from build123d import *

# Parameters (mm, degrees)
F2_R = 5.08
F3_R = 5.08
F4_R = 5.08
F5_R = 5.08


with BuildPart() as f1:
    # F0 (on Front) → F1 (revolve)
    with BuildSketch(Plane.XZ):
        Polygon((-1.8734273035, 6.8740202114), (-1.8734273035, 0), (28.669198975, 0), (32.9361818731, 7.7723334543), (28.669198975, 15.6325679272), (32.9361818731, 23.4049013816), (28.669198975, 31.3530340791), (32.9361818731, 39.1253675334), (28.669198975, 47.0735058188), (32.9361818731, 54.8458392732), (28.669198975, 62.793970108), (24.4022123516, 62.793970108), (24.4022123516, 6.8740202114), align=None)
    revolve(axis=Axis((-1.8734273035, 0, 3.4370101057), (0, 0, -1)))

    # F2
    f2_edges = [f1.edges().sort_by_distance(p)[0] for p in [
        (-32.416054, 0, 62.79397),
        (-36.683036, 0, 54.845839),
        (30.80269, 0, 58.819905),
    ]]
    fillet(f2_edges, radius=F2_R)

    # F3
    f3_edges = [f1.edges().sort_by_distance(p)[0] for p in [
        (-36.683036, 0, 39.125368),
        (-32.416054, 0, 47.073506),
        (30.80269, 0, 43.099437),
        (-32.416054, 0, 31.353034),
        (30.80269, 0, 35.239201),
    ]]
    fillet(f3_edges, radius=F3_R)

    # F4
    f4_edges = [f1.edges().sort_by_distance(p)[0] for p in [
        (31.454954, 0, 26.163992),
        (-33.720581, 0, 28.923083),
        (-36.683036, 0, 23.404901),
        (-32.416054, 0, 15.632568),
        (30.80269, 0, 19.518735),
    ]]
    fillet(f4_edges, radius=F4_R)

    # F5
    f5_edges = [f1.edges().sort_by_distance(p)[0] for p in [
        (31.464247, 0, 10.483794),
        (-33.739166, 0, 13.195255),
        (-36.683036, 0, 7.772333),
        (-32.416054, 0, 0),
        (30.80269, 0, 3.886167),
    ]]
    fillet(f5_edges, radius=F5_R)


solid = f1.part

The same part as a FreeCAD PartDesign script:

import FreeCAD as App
import Part
import Sketcher
Q = App.Units.Quantity


def edges_at(feature, points):
    """Names of the edges that pass closest to the given points."""
    edges = feature.Shape.Edges
    near = lambda p: min(range(len(edges)), key=lambda i: edges[i].distToShape(Part.Vertex(*p))[0])
    return sorted({f"Edge{near(p) + 1}" for p in points})


def add_polygon(sketch, points):
    """Adds a closed chain of lines whose ends are joined by coincident constraints."""
    first, n = sketch.GeometryCount, len(points)
    for a, b in zip(points, points[1:] + points[:1]):
        sketch.addGeometry(Part.LineSegment(App.Vector(*a, 0), App.Vector(*b, 0)), False)
    for i in range(n):
        sketch.addConstraint(Sketcher.Constraint("Coincident", first + i, 2, first + (i + 1) % n, 1))

doc = App.newDocument("Part")
params = doc.addObject("Spreadsheet::Sheet", "Params")
for row, (alias, value) in enumerate([
    ("revolution_angle", "360 deg"),
    ("fillet_radius", "0.2 in"),
    ("fillet2_radius", "0.2 in"),
    ("fillet3_radius", "0.2 in"),
    ("fillet4_radius", "0.2 in"),
], start=1):
    params.set(f"A{row}", alias)
    params.set(f"B{row}", "=" + value)
    params.setAlias(f"B{row}", alias)

body = doc.addObject("PartDesign::Body", "Body")

# Sketch on XZ plane
sketch1 = body.newObject("Sketcher::SketchObject", "Sketch")
sketch1.AttachmentSupport = (doc.getObject("XZ_Plane"), [""])
sketch1.MapMode = "FlatFace"
add_polygon(sketch1, [(-1.9, 6.9), (-1.9, 0), (28.7, 0), (32.9, 7.8), (28.7, 15.6), (32.9, 23.4), (28.7, 31.4), (32.9, 39.1), (28.7, 47.1), (32.9, 54.8), (28.7, 62.8), (24.4, 62.8), (24.4, 6.9)])  # lines 0-12
sketch1.addGeometry(Part.LineSegment(App.Vector(-1.9, 62.8, 0), App.Vector(-1.9, 0, 0)), True)  # axis
sketch1.addConstraint(Sketcher.Constraint("Vertical", 0))
sketch1.addConstraint(Sketcher.Constraint("Horizontal", 1))
sketch1.addConstraint(Sketcher.Constraint("Horizontal", 10))
sketch1.addConstraint(Sketcher.Constraint("Vertical", 11))
sketch1.addConstraint(Sketcher.Constraint("Horizontal", 12))
sketch1.addConstraint(Sketcher.Constraint("Vertical", 13))
sketch1.addConstraint(Sketcher.Constraint("Coincident", 13, 2, 0, 2))
sketch1.addConstraint(Sketcher.Constraint("PointOnObject", 0, 2, -1))
sketch1.addConstraint(Sketcher.Constraint("Parallel", 2, 4))
sketch1.addConstraint(Sketcher.Constraint("Parallel", 4, 6))
sketch1.addConstraint(Sketcher.Constraint("Parallel", 5, 7))
sketch1.addConstraint(Sketcher.Constraint("Parallel", 6, 8))
sketch1.addConstraint(Sketcher.Constraint("Parallel", 7, 9))
sketch1.addConstraint(Sketcher.Constraint("Horizontal", 10, 2, 13, 1))
sketch1.addConstraint(Sketcher.Constraint("Vertical", 1, 2, 3, 2))
sketch1.addConstraint(Sketcher.Constraint("Vertical", 2, 2, 4, 2))
sketch1.addConstraint(Sketcher.Constraint("Vertical", 3, 2, 5, 2))
sketch1.addConstraint(Sketcher.Constraint("Vertical", 4, 2, 6, 2))
sketch1.addConstraint(Sketcher.Constraint("Vertical", 5, 2, 7, 2))
sketch1.addConstraint(Sketcher.Constraint("Vertical", 6, 2, 8, 2))
sketch1.addConstraint(Sketcher.Constraint("Vertical", 7, 2, 9, 2))
sketch1.addConstraint(Sketcher.Constraint("DistanceX", -1, 1, 2, 2, Q("1.2967001 in")))
sketch1.addConstraint(Sketcher.Constraint("DistanceX", 12, 2, 12, 1, Q("26.27564 mm")))
sketch1.addConstraint(Sketcher.Constraint("DistanceY", 0, 2, 0, 1, Q("6.87402 mm")))
sketch1.addConstraint(Sketcher.Constraint("DistanceY", 11, 2, 11, 1, Q("55.91995 mm")))
sketch1.addConstraint(Sketcher.Constraint("DistanceX", -1, 1, 1, 2, Q("28.669199 mm")))
sketch1.addConstraint(Sketcher.Constraint("DistanceY", -1, 1, 4, 2, Q("23.404901 mm")))
sketch1.addConstraint(Sketcher.Constraint("DistanceY", 2, 2, 5, 2, Q("23.580701 mm")))
sketch1.addConstraint(Sketcher.Constraint("DistanceX", 1, 1, 1, 2, Q("30.542626 mm")))
revolution = body.newObject("PartDesign::Revolution", "Revolution")
revolution.Profile = sketch1
revolution.ReferenceAxis = (sketch1, ["Axis0"])
revolution.setExpression("Angle", "Params.revolution_angle")
doc.recompute()

fillet = body.newObject("PartDesign::Fillet", "Fillet")
fillet.Base = (revolution, edges_at(revolution, [(-32.416, 0, 62.794), (-36.683, 0, 54.846), (30.803, 0, 58.82)]))
fillet.setExpression("Radius", "Params.fillet_radius")
doc.recompute()

fillet2 = body.newObject("PartDesign::Fillet", "Fillet001")
fillet2.Base = (fillet, edges_at(fillet, [
    (-36.683, 0, 39.125),
    (-32.416, 0, 47.074),
    (30.803, 0, 43.099),
    (-32.416, 0, 31.353),
    (30.803, 0, 35.239),
]))
fillet2.setExpression("Radius", "Params.fillet2_radius")
doc.recompute()

fillet3 = body.newObject("PartDesign::Fillet", "Fillet002")
fillet3.Base = (fillet2, edges_at(fillet2, [
    (31.455, 0, 26.164),
    (-33.721, 0, 28.923),
    (-36.683, 0, 23.405),
    (-32.416, 0, 15.633),
    (30.803, 0, 19.519),
]))
fillet3.setExpression("Radius", "Params.fillet3_radius")
doc.recompute()

fillet4 = body.newObject("PartDesign::Fillet", "Fillet003")
fillet4.Base = (fillet3, edges_at(fillet3, [
    (31.464, 0, 10.484),
    (-33.739, 0, 13.195),
    (-36.683, 0, 7.772),
    (-32.416, 0, 0),
    (30.803, 0, 3.886),
]))
fillet4.setExpression("Radius", "Params.fillet4_radius")

doc.recompute()
